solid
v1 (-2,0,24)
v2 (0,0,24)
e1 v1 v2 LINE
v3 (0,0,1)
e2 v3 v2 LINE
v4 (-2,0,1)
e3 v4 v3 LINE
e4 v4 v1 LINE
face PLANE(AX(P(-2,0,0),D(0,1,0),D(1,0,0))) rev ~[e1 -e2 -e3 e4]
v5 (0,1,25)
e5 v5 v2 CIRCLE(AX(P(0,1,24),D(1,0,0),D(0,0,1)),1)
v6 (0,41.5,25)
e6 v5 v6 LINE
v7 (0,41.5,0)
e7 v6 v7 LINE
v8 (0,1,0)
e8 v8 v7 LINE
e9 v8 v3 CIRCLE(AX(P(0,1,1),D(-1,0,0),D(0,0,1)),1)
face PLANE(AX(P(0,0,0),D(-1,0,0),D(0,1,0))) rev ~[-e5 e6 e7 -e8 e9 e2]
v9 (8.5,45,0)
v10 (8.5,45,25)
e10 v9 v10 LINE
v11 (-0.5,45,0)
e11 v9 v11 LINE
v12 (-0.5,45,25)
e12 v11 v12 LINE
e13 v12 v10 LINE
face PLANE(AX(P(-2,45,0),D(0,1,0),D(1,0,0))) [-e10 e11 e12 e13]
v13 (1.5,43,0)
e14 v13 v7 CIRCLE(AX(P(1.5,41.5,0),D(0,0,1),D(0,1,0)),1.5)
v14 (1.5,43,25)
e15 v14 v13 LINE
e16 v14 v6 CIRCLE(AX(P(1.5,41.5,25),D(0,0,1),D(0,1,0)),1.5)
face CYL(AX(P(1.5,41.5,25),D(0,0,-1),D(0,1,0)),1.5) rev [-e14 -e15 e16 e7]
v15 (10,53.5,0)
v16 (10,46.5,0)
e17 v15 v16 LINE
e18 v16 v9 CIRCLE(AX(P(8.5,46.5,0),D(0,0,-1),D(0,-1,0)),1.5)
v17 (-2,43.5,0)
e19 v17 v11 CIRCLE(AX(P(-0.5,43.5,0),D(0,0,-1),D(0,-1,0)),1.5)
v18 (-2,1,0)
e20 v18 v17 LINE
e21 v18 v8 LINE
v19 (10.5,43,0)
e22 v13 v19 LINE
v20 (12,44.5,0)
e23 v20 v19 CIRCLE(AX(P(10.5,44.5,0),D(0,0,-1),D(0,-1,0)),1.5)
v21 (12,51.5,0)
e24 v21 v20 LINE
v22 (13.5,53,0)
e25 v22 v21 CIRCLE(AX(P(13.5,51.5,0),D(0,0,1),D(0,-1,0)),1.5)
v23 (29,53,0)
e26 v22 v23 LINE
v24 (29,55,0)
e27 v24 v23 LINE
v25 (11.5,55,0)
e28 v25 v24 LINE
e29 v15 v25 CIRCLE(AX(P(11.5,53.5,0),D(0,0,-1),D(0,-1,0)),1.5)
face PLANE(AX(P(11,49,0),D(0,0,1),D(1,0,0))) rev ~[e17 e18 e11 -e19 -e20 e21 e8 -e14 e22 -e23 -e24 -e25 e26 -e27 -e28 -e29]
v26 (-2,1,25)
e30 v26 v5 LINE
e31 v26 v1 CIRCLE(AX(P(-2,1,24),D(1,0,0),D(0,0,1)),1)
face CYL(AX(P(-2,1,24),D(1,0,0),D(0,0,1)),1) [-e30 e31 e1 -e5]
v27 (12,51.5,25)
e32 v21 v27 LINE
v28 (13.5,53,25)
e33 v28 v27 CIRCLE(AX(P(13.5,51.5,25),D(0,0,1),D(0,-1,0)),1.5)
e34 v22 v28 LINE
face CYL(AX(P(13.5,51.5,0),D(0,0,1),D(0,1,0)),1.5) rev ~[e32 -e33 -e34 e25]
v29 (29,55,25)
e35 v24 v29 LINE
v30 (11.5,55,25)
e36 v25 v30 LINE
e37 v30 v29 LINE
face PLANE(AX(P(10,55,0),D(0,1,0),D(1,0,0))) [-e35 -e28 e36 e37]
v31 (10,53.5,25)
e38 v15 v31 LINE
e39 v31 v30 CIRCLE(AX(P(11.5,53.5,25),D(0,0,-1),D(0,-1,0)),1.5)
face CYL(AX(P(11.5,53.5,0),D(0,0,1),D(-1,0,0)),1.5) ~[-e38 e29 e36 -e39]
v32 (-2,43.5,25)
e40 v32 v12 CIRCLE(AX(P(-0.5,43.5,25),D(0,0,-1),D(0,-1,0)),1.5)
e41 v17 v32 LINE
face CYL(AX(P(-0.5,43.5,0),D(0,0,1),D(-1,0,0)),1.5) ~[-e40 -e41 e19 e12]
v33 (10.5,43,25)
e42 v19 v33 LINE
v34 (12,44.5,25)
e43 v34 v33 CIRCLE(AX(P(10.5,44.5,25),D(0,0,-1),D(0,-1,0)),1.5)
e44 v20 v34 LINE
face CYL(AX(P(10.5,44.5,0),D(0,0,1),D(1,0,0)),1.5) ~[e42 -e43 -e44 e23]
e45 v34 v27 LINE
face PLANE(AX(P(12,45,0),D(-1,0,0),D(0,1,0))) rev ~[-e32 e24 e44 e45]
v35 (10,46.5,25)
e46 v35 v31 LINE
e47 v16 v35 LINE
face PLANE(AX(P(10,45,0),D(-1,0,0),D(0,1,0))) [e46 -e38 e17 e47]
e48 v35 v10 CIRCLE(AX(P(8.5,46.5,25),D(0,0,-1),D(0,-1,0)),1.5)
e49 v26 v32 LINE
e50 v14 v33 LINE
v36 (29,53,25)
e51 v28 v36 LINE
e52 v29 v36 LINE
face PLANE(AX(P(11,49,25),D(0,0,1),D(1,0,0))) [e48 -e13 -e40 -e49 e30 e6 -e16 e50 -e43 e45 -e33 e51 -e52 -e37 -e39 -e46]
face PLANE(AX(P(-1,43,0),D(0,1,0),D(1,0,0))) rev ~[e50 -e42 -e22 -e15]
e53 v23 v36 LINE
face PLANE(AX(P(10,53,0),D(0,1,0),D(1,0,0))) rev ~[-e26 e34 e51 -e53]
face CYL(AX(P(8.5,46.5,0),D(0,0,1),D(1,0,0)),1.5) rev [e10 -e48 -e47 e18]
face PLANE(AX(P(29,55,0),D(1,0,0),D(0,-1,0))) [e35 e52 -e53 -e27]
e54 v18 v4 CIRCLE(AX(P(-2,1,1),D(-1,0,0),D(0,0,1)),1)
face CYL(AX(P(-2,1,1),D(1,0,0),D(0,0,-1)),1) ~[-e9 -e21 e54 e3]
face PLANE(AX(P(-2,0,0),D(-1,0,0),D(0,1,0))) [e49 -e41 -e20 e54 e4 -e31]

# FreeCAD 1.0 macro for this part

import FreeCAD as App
import Part
import Sketcher


def edges_at(feature, points):
    """Names of the edges that pass closest to the given points."""
    edges = feature.Shape.Edges
    near = lambda p: min(range(len(edges)), key=lambda i: edges[i].distToShape(Part.Vertex(*p))[0])
    return sorted({f"Edge{near(p) + 1}" for p in points})

doc = App.newDocument("Part")
params = doc.addObject("Spreadsheet::Sheet", "Params")
for row, (alias, value) in enumerate([
    ("sketch1_width", "2 mm"),
    ("sketch1_height", "19 mm"),
    ("pad1_length", "25 mm"),
    ("sketch2_width", "2 mm"),
    ("sketch2_height", "8 mm"),
    ("pad2_length", "25 mm"),
    ("sketch3_width", "2 mm"),
    ("sketch3_height", "13 mm"),
    ("pad3_length", "25 mm"),
    ("sketch4_width", "2 mm"),
    ("sketch4_height", "45 mm"),
    ("pad4_length", "25 mm"),
    ("fillet_radius", "1.5 mm"),
    ("fillet2_radius", "1 mm"),
], start=1):
    params.set(f"A{row}", alias)
    params.set(f"B{row}", "=" + value)
    params.setAlias(f"B{row}", alias)

body = doc.addObject("PartDesign::Body", "Body")

sketch1 = doc.addObject("Sketcher::SketchObject", "Sketch")
body.addObject(sketch1)
sketch1.AttachmentSupport = (doc.XY_Plane, [""])
sketch1.MapMode = "FlatFace"
sketch1.addGeometry([
    Part.LineSegment(App.Vector(0, 19, 0), App.Vector(0, 0, 0)),
    Part.LineSegment(App.Vector(0, 0, 0), App.Vector(2, 0, 0)),
    Part.LineSegment(App.Vector(2, 0, 0), App.Vector(2, 19, 0)),
    Part.LineSegment(App.Vector(2, 19, 0), App.Vector(0, 19, 0)),
], False)
sketch1.addConstraint([
    Sketcher.Constraint("Coincident", 0, 2, 1, 1),
    Sketcher.Constraint("Coincident", 1, 2, 2, 1),
    Sketcher.Constraint("Coincident", 2, 2, 3, 1),
    Sketcher.Constraint("Coincident", 3, 2, 0, 1),
    Sketcher.Constraint("Vertical", 0),
    Sketcher.Constraint("Horizontal", 1),
    Sketcher.Constraint("Vertical", 2),
    Sketcher.Constraint("Horizontal", 3),
    Sketcher.Constraint("Coincident", 0, 2, -1, 1),
    Sketcher.Constraint("DistanceX", 1, 1, 1, 2, 2.0),
    Sketcher.Constraint("DistanceY", 0, 2, 0, 1, 19.0),
])
sketch1.setExpression("Constraints[9]", "Params.sketch1_width")
sketch1.setExpression("Constraints[10]", "Params.sketch1_height")
pad1 = doc.addObject("PartDesign::Pad", "Pad")
body.addObject(pad1)
pad1.Profile = sketch1
pad1.setExpression("Length", "Params.pad1_length")
body2 = doc.addObject("PartDesign::Body", "Body001")
doc.recompute()

body.Placement = App.Placement(App.Vector(10, 55, 0), App.Rotation(App.Vector(0, 0, 1), 270))
boolean = doc.addObject("PartDesign::Boolean", "Boolean")
body2.addObject(boolean)
boolean.Type = "Fuse"
boolean.addObjects([body])
body3 = doc.addObject("PartDesign::Body", "Body002")

sketch2 = doc.addObject("Sketcher::SketchObject", "Sketch001")
body3.addObject(sketch2)
sketch2.AttachmentSupport = (doc.getObject("XY_Plane002"), [""])
sketch2.MapMode = "FlatFace"
sketch2.addGeometry([
    Part.LineSegment(App.Vector(10, 53, 0), App.Vector(10, 45, 0)),
    Part.LineSegment(App.Vector(10, 45, 0), App.Vector(12, 45, 0)),
    Part.LineSegment(App.Vector(12, 45, 0), App.Vector(12, 53, 0)),
    Part.LineSegment(App.Vector(12, 53, 0), App.Vector(10, 53, 0)),
], False)
sketch2.addConstraint([
    Sketcher.Constraint("Coincident", 0, 2, 1, 1),
    Sketcher.Constraint("Coincident", 1, 2, 2, 1),
    Sketcher.Constraint("Coincident", 2, 2, 3, 1),
    Sketcher.Constraint("Coincident", 3, 2, 0, 1),
    Sketcher.Constraint("Vertical", 0),
    Sketcher.Constraint("Horizontal", 1),
    Sketcher.Constraint("Vertical", 2),
    Sketcher.Constraint("Horizontal", 3),
    Sketcher.Constraint("DistanceX", 1, 1, 1, 2, 2.0),
    Sketcher.Constraint("DistanceY", 0, 2, 0, 1, 8.0),
    Sketcher.Constraint("DistanceX", -1, 1, 0, 2, 10.0),
    Sketcher.Constraint("DistanceY", -1, 1, 0, 2, 45.0),
])
sketch2.setExpression("Constraints[8]", "Params.sketch2_width")
sketch2.setExpression("Constraints[9]", "Params.sketch2_height")
pad2 = doc.addObject("PartDesign::Pad", "Pad001")
body3.addObject(pad2)
pad2.Profile = sketch2
pad2.setExpression("Length", "Params.pad2_length")
body4 = doc.addObject("PartDesign::Body", "Body003")

sketch3 = doc.addObject("Sketcher::SketchObject", "Sketch002")
body4.addObject(sketch3)
sketch3.AttachmentSupport = (doc.getObject("XY_Plane003"), [""])
sketch3.MapMode = "FlatFace"
sketch3.addGeometry([
    Part.LineSegment(App.Vector(0, 13, 0), App.Vector(0, 0, 0)),
    Part.LineSegment(App.Vector(0, 0, 0), App.Vector(2, 0, 0)),
    Part.LineSegment(App.Vector(2, 0, 0), App.Vector(2, 13, 0)),
    Part.LineSegment(App.Vector(2, 13, 0), App.Vector(0, 13, 0)),
], False)
sketch3.addConstraint([
    Sketcher.Constraint("Coincident", 0, 2, 1, 1),
    Sketcher.Constraint("Coincident", 1, 2, 2, 1),
    Sketcher.Constraint("Coincident", 2, 2, 3, 1),
    Sketcher.Constraint("Coincident", 3, 2, 0, 1),
    Sketcher.Constraint("Vertical", 0),
    Sketcher.Constraint("Horizontal", 1),
    Sketcher.Constraint("Vertical", 2),
    Sketcher.Constraint("Horizontal", 3),
    Sketcher.Constraint("Coincident", 0, 2, -1, 1),
    Sketcher.Constraint("DistanceX", 1, 1, 1, 2, 2.0),
    Sketcher.Constraint("DistanceY", 0, 2, 0, 1, 13.0),
])
sketch3.setExpression("Constraints[9]", "Params.sketch3_width")
sketch3.setExpression("Constraints[10]", "Params.sketch3_height")
pad3 = doc.addObject("PartDesign::Pad", "Pad002")
body4.addObject(pad3)
pad3.Profile = sketch3
pad3.setExpression("Length", "Params.pad3_length")
body5 = doc.addObject("PartDesign::Body", "Body004")
doc.recompute()

body4.Placement = App.Placement(App.Vector(-1, 45, 0), App.Rotation(App.Vector(0, 0, 1), 270))
boolean2 = doc.addObject("PartDesign::Boolean", "Boolean001")
body5.addObject(boolean2)
boolean2.Type = "Fuse"
boolean2.addObjects([body4])
body6 = doc.addObject("PartDesign::Body", "Body005")
body6.AllowCompound = True

sketch4 = doc.addObject("Sketcher::SketchObject", "Sketch003")
body6.addObject(sketch4)
sketch4.AttachmentSupport = (doc.getObject("XY_Plane005"), [""])
sketch4.MapMode = "FlatFace"
sketch4.addGeometry([
    Part.LineSegment(App.Vector(-2, 45, 0), App.Vector(-2, 0, 0)),
    Part.LineSegment(App.Vector(-2, 0, 0), App.Vector(0, 0, 0)),
    Part.LineSegment(App.Vector(0, 0, 0), App.Vector(0, 45, 0)),
    Part.LineSegment(App.Vector(0, 45, 0), App.Vector(-2, 45, 0)),
], False)
sketch4.addConstraint([
    Sketcher.Constraint("Coincident", 0, 2, 1, 1),
    Sketcher.Constraint("Coincident", 1, 2, 2, 1),
    Sketcher.Constraint("Coincident", 2, 2, 3, 1),
    Sketcher.Constraint("Coincident", 3, 2, 0, 1),
    Sketcher.Constraint("Vertical", 0),
    Sketcher.Constraint("Horizontal", 1),
    Sketcher.Constraint("Vertical", 2),
    Sketcher.Constraint("Horizontal", 3),
    Sketcher.Constraint("Coincident", 1, 2, -1, 1),
    Sketcher.Constraint("DistanceX", 1, 1, 1, 2, 2.0),
    Sketcher.Constraint("DistanceY", 0, 2, 0, 1, 45.0),
])
sketch4.setExpression("Constraints[9]", "Params.sketch4_width")
sketch4.setExpression("Constraints[10]", "Params.sketch4_height")
pad4 = doc.addObject("PartDesign::Pad", "Pad003")
body6.addObject(pad4)
pad4.Profile = sketch4
pad4.setExpression("Length", "Params.pad4_length")
doc.recompute()

boolean3 = doc.addObject("PartDesign::Boolean", "Boolean002")
body6.addObject(boolean3)
boolean3.Type = "Fuse"
boolean3.addObjects([body5])
doc.recompute()

boolean4 = doc.addObject("PartDesign::Boolean", "Boolean003")
body6.addObject(boolean4)
boolean4.Type = "Fuse"
boolean4.addObjects([body2])
doc.recompute()

boolean5 = doc.addObject("PartDesign::Boolean", "Boolean004")
body6.addObject(boolean5)
boolean5.Type = "Fuse"
boolean5.addObjects([body3])
doc.recompute()

fillet = doc.addObject("PartDesign::Fillet", "Fillet")
body6.addObject(fillet)
fillet.Base = (boolean5, edges_at(boolean5, [
    (-2, 45, 12.5),
    (10, 45, 12.5),
    (0, 43, 12.5),
    (12, 43, 12.5),
    (10, 55, 12.5),
    (12, 53, 12.5),
]))
fillet.setExpression("Radius", "Params.fillet_radius")
doc.recompute()

fillet2 = doc.addObject("PartDesign::Fillet", "Fillet001")
body6.addObject(fillet2)
fillet2.Base = (fillet, edges_at(fillet, [(-1, 0, 25), (-1, 0, 0)]))
fillet2.setExpression("Radius", "Params.fillet2_radius")

doc.recompute()
